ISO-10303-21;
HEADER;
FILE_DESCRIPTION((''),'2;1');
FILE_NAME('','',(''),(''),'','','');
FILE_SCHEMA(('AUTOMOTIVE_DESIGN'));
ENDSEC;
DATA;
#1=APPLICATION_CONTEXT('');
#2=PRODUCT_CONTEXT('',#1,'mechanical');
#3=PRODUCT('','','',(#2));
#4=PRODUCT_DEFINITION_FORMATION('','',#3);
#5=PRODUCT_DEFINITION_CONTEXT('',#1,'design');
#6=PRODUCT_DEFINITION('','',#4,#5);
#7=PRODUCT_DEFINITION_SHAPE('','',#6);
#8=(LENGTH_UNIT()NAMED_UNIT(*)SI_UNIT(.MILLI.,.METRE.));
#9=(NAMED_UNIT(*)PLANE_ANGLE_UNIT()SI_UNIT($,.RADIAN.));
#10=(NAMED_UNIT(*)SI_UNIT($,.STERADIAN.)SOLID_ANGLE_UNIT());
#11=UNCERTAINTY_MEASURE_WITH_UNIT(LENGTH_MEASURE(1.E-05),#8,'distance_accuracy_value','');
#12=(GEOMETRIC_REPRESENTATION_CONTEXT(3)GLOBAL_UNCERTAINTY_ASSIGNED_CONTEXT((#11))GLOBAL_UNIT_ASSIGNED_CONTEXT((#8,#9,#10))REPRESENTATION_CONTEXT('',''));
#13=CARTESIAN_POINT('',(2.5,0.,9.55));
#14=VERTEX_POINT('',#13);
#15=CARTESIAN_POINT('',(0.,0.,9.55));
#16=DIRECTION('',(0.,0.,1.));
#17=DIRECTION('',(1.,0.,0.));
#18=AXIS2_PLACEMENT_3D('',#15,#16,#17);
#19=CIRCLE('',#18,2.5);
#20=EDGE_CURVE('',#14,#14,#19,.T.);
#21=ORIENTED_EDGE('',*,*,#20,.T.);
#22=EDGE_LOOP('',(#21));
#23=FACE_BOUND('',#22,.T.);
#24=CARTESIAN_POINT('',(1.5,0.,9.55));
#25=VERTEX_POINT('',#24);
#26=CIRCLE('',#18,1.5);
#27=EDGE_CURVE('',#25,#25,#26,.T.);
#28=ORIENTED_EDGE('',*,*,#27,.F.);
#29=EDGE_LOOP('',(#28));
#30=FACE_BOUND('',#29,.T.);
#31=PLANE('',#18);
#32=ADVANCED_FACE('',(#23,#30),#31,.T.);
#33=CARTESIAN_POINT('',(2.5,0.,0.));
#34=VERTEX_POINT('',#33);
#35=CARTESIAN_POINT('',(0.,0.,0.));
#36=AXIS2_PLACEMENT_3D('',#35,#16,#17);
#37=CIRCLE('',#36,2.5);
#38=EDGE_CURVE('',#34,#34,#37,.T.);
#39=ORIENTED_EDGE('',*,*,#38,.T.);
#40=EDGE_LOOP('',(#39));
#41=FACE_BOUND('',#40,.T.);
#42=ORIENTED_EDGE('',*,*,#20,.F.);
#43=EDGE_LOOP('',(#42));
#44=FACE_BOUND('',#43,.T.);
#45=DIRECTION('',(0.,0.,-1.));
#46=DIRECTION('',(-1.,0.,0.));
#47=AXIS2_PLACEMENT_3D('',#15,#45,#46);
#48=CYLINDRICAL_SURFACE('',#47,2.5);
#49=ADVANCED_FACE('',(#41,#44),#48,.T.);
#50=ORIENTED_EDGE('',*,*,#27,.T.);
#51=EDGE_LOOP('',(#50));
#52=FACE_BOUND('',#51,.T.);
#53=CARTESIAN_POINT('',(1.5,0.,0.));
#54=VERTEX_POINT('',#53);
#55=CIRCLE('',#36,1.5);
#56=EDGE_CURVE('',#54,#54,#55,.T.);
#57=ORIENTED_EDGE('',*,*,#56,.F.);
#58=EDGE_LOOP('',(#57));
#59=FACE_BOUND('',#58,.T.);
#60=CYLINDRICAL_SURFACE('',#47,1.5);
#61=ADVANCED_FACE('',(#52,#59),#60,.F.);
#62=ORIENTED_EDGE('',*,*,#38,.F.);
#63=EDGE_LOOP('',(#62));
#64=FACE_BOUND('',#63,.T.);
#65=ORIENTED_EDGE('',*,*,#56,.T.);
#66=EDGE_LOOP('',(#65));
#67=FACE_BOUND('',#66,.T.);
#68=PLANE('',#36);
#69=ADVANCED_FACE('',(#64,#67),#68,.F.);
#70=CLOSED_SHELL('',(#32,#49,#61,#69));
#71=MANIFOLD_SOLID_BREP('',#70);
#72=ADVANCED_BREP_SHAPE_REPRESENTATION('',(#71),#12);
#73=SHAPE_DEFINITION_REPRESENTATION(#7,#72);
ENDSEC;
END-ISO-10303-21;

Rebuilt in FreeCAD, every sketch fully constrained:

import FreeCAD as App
import Part
import Sketcher
from FreeCAD import Vector

doc = App.newDocument("Part")
body = doc.addObject("PartDesign::Body", "Body")

# Sketch on XY plane
sketch1 = doc.addObject("Sketcher::SketchObject", "Sketch")
body.addObject(sketch1)
sketch1.AttachmentSupport = (doc.XY_Plane, [""])
sketch1.MapMode = "FlatFace"
sketch1.addGeometry([
    Part.Circle(Vector(0, 0, 0), Vector(0, 0, 1), 2.5),
    Part.Circle(Vector(0, 0, 0), Vector(0, 0, 1), 1.5),
], False)
sketch1.addConstraint([
    Sketcher.Constraint("Coincident", 0, 3, -1, 1),
    Sketcher.Constraint("Coincident", 1, 3, -1, 1),
    Sketcher.Constraint("Diameter", 0, 5.0),
    Sketcher.Constraint("Diameter", 1, 3.0),
])
pad1 = doc.addObject("PartDesign::Pad", "Pad")
body.addObject(pad1)
pad1.Profile = sketch1
pad1.Length = 9.55

doc.recompute()
